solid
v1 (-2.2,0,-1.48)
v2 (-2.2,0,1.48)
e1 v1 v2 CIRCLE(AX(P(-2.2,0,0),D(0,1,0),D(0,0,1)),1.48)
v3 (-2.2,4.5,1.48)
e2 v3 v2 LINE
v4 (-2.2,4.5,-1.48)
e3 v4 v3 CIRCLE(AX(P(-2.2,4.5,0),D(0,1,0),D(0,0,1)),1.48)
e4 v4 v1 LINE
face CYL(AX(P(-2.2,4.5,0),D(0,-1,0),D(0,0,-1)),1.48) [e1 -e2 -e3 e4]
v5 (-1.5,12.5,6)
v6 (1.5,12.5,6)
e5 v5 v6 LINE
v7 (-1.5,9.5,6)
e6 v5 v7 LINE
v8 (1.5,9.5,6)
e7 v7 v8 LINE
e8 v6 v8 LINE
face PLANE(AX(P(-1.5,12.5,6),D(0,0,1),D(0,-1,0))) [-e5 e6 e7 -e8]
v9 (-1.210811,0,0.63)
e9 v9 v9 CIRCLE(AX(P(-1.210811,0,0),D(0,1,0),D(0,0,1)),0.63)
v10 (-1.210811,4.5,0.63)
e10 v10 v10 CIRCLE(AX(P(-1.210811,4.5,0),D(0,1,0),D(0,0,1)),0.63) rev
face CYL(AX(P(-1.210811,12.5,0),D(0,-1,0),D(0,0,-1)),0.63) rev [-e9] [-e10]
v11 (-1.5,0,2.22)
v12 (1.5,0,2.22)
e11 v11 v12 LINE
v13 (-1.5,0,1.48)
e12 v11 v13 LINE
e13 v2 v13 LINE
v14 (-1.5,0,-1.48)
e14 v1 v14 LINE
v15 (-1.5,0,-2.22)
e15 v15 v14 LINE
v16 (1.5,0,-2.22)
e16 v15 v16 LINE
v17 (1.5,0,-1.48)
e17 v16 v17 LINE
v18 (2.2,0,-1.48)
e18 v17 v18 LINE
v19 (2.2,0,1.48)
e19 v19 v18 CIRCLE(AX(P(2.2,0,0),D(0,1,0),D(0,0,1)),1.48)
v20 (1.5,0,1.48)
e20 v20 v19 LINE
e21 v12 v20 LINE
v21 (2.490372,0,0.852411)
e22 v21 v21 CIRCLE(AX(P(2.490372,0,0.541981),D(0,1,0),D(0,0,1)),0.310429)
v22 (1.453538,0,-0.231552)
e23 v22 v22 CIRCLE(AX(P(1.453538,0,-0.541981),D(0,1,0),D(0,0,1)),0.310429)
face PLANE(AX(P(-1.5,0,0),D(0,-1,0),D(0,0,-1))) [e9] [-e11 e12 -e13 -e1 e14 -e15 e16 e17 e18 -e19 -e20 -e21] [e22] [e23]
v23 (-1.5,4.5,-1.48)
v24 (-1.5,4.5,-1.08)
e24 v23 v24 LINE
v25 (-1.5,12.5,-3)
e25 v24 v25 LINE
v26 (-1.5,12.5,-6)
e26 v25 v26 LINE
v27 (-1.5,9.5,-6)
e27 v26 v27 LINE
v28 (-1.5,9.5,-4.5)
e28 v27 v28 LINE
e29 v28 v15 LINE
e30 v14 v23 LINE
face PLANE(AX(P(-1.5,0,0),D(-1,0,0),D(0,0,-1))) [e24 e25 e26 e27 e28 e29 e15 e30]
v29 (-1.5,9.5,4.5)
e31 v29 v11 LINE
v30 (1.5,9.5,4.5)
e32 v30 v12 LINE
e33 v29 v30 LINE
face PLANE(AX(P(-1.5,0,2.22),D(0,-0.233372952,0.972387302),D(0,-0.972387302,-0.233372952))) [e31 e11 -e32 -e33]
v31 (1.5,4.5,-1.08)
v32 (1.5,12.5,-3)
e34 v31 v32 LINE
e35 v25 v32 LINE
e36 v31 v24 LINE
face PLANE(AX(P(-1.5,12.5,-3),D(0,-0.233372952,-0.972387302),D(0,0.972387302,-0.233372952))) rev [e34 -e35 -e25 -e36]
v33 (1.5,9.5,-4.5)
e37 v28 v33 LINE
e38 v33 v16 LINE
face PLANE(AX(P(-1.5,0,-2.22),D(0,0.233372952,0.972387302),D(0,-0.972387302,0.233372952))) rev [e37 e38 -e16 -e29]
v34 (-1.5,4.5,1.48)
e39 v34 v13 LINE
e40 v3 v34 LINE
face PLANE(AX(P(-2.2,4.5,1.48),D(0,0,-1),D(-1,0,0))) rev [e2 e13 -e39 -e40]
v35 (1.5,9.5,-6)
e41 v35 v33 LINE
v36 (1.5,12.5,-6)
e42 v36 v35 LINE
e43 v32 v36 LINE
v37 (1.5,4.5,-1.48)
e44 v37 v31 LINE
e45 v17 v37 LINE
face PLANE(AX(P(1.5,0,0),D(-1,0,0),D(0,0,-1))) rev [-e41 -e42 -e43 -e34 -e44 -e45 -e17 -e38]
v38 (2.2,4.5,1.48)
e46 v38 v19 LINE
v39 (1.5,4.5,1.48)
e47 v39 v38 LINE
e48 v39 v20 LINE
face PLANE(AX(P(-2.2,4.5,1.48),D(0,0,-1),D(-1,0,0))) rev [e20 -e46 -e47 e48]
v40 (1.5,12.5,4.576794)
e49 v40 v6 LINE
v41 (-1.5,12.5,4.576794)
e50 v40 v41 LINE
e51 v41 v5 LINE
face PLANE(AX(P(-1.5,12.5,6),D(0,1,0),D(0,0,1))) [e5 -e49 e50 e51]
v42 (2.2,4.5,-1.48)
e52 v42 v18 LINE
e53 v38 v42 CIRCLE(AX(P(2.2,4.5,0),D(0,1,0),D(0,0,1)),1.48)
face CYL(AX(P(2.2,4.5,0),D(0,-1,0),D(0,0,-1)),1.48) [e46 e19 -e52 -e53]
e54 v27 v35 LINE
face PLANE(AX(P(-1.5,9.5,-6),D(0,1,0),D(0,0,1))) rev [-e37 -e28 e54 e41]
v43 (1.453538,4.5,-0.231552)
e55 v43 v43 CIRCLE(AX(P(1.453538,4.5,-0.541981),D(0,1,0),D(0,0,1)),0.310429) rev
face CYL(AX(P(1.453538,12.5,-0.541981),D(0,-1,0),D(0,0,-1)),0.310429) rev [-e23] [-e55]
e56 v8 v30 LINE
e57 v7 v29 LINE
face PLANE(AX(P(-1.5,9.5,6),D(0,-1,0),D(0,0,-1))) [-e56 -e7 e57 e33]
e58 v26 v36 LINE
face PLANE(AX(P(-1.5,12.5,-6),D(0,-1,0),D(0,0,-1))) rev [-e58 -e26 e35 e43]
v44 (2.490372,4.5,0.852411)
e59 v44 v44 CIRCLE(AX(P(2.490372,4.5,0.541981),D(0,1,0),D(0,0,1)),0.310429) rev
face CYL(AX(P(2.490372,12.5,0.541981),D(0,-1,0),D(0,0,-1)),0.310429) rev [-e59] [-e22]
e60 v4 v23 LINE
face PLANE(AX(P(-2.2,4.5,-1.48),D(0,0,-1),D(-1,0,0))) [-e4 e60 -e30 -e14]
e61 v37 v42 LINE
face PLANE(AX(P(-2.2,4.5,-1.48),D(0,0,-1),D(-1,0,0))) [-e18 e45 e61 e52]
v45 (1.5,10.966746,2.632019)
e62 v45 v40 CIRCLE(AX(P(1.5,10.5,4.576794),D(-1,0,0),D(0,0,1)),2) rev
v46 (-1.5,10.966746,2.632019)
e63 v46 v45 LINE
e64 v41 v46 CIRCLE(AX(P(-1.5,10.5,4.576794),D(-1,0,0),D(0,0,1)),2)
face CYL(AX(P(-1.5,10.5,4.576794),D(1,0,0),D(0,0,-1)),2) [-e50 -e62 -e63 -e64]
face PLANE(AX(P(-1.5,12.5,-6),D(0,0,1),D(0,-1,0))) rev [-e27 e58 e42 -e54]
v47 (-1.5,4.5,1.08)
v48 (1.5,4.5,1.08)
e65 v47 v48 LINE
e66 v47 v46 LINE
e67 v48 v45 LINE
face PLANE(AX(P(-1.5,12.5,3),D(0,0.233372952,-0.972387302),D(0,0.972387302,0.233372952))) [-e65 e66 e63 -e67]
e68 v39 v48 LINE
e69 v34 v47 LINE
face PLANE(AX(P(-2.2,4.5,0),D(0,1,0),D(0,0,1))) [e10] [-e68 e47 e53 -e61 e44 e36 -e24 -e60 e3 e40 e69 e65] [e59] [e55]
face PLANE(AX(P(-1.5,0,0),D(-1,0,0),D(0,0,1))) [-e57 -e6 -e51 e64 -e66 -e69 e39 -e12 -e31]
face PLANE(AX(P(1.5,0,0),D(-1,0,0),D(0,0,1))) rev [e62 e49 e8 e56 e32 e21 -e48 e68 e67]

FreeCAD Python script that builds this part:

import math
import FreeCAD as App
import Part
import Sketcher


def edges_at(feature, points):
    """Names of the edges that pass closest to the given points."""
    edges = feature.Shape.Edges
    near = lambda p: min(range(len(edges)), key=lambda i: edges[i].distToShape(Part.Vertex(*p))[0])
    return sorted({f"Edge{near(p) + 1}" for p in points})


def add_polygon(sketch, points):
    """Adds a closed chain of lines whose ends are joined by coincident constraints."""
    first, n = sketch.GeometryCount, len(points)
    for a, b in zip(points, points[1:] + points[:1]):
        sketch.addGeometry(Part.LineSegment(App.Vector(*a, 0), App.Vector(*b, 0)), False)
    for i in range(n):
        sketch.addConstraint(Sketcher.Constraint("Coincident", first + i, 2, first + (i + 1) % n, 1))

doc = App.newDocument("Part")
params = doc.addObject("Spreadsheet::Sheet", "Params")
for row, (alias, value) in enumerate([
    ("sketch1_width", "3 mm"),
    ("sketch1_height", "1.5 mm"),
    ("sketch1_height2", "2.22 mm"),
    ("pad1_length", "3 mm"),
    ("fillet_radius", "2 mm"),
    ("sketch2_radius", "1.48 mm"),
    ("sketch2_width", "4.4 mm"),
    ("pad2_length", "4.5 mm"),
    ("sketch3_diameter", "1.26 mm"),
], start=1):
    params.set(f"A{row}", alias)
    params.set(f"B{row}", "=" + value)
    params.setAlias(f"B{row}", alias)

body = doc.addObject("PartDesign::Body", "Body")

# Sketch on YZ plane
sketch1 = body.newObject("Sketcher::SketchObject", "Sketch")
sketch1.AttachmentSupport = (doc.getObject("YZ_Plane"), [""])
sketch1.MapMode = "FlatFace"
add_polygon(sketch1, [(12.5, 6), (9.5, 6), (9.5, 4.5), (0, 2.2), (0, 0), (12.5, 3)])  # lines 0-5
sketch1.addConstraint(Sketcher.Constraint("Horizontal", 0))
sketch1.addConstraint(Sketcher.Constraint("Vertical", 1))
sketch1.addConstraint(Sketcher.Constraint("Vertical", 3))
sketch1.addConstraint(Sketcher.Constraint("Vertical", 5))
sketch1.addConstraint(Sketcher.Constraint("Coincident", 3, 2, -1, 1))
sketch1.addConstraint(Sketcher.Constraint("Parallel", 2, 4))
sketch1.addConstraint(Sketcher.Constraint("Equal", 0, 5))
sketch1.addConstraint(Sketcher.Constraint("DistanceX", 0, 2, 0, 1, 3.0))
sketch1.addConstraint(Sketcher.Constraint("DistanceY", 1, 2, 1, 1, 1.5))
sketch1.addConstraint(Sketcher.Constraint("DistanceY", -1, 1, 0, 2, 6.0))
sketch1.addConstraint(Sketcher.Constraint("DistanceY", 3, 2, 3, 1, 2.22))
sketch1.setExpression("Constraints[13]", "Params.sketch1_width")
sketch1.setExpression("Constraints[14]", "Params.sketch1_height")
sketch1.setExpression("Constraints[16]", "Params.sketch1_height2")
pad1 = body.newObject("PartDesign::Pad", "Pad")
pad1.Profile = sketch1
pad1.setExpression("Length", "Params.pad1_length")
pad1.Midplane = True
doc.recompute()

fillet = body.newObject("PartDesign::Fillet", "Fillet")
fillet.Base = (pad1, edges_at(pad1, [(0, 12.5, 3)]))
fillet.setExpression("Radius", "Params.fillet_radius")

# Sketch on XZ plane
sketch2 = body.newObject("Sketcher::SketchObject", "Sketch001")
sketch2.AttachmentSupport = (doc.getObject("XZ_Plane"), [""])
sketch2.MapMode = "FlatFace"
sketch2.addGeometry(Part.LineSegment(App.Vector(2.2, -1.5, 0), App.Vector(-2.2, -1.5, 0)), False)
sketch2.addGeometry(Part.ArcOfCircle(Part.Circle(App.Vector(-2.2, 0, 0), App.Vector(0, 0, 1), 1.5), math.radians(90), math.radians(270)), False)
sketch2.addGeometry(Part.LineSegment(App.Vector(-2.2, 1.5, 0), App.Vector(2.2, 1.5, 0)), False)
sketch2.addGeometry(Part.ArcOfCircle(Part.Circle(App.Vector(2.2, 0, 0), App.Vector(0, 0, 1), 1.5), math.radians(-90), math.radians(90)), False)
sketch2.addConstraint(Sketcher.Constraint("Tangent", 0, 2, 1, 2))
sketch2.addConstraint(Sketcher.Constraint("Tangent", 1, 1, 2, 1))
sketch2.addConstraint(Sketcher.Constraint("Tangent", 2, 2, 3, 2))
sketch2.addConstraint(Sketcher.Constraint("Tangent", 3, 1, 0, 1))
sketch2.addConstraint(Sketcher.Constraint("Horizontal", 0))
sketch2.addConstraint(Sketcher.Constraint("Horizontal", 2))
sketch2.addConstraint(Sketcher.Constraint("Symmetric", 1, 3, 3, 3, -1, 1))
sketch2.addConstraint(Sketcher.Constraint("Radius", 1, 1.48))
sketch2.addConstraint(Sketcher.Constraint("DistanceX", 0, 2, 0, 1, 4.4))
sketch2.setExpression("Constraints[7]", "Params.sketch2_radius")
sketch2.setExpression("Constraints[8]", "Params.sketch2_width")
pad2 = body.newObject("PartDesign::Pad", "Pad001")
pad2.Profile = sketch2
pad2.setExpression("Length", "Params.pad2_length")
pad2.Reversed = True
doc.recompute()

mirrored = body.newObject("PartDesign::Mirrored", "Mirrored")
mirrored.Originals = [pad1]
mirrored.MirrorPlane = (doc.getObject("XY_Plane"), [""])
body.Tip = mirrored

# Sketch on XZ plane
sketch3 = body.newObject("Sketcher::SketchObject", "Sketch002")
sketch3.AttachmentSupport = (doc.getObject("XZ_Plane"), [""])
sketch3.MapMode = "FlatFace"
sketch3.addGeometry(Part.Circle(App.Vector(-1.21, 0, 0), App.Vector(0, 0, 1), 0.63), False)
sketch3.addGeometry(Part.Circle(App.Vector(1.45, -0.54, 0), App.Vector(0, 0, 1), 0.31), False)
sketch3.addGeometry(Part.Circle(App.Vector(2.49, 0.54, 0), App.Vector(0, 0, 1), 0.31), False)
sketch3.addConstraint(Sketcher.Constraint("Equal", 1, 2))
sketch3.addConstraint(Sketcher.Constraint("PointOnObject", 0, 3, -1))
sketch3.addConstraint(Sketcher.Constraint("Diameter", 0, 1.26))
sketch3.addConstraint(Sketcher.Constraint("Diameter", 1, 0.620859))
sketch3.addConstraint(Sketcher.Constraint("DistanceX", 0, 3, -1, 1, 1.210811))
sketch3.addConstraint(Sketcher.Constraint("DistanceX", -1, 1, 1, 3, 1.453538))
sketch3.addConstraint(Sketcher.Constraint("DistanceY", 1, 3, -1, 1, 0.541981))
sketch3.addConstraint(Sketcher.Constraint("DistanceY", -1, 1, 2, 3, 0.541981))
sketch3.addConstraint(Sketcher.Constraint("DistanceX", -1, 1, 2, 3, 2.490372))
sketch3.setExpression("Constraints[2]", "Params.sketch3_diameter")
pocket1 = body.newObject("PartDesign::Pocket", "Pocket")
pocket1.Profile = sketch3
pocket1.Type = "ThroughAll"

doc.recompute()
